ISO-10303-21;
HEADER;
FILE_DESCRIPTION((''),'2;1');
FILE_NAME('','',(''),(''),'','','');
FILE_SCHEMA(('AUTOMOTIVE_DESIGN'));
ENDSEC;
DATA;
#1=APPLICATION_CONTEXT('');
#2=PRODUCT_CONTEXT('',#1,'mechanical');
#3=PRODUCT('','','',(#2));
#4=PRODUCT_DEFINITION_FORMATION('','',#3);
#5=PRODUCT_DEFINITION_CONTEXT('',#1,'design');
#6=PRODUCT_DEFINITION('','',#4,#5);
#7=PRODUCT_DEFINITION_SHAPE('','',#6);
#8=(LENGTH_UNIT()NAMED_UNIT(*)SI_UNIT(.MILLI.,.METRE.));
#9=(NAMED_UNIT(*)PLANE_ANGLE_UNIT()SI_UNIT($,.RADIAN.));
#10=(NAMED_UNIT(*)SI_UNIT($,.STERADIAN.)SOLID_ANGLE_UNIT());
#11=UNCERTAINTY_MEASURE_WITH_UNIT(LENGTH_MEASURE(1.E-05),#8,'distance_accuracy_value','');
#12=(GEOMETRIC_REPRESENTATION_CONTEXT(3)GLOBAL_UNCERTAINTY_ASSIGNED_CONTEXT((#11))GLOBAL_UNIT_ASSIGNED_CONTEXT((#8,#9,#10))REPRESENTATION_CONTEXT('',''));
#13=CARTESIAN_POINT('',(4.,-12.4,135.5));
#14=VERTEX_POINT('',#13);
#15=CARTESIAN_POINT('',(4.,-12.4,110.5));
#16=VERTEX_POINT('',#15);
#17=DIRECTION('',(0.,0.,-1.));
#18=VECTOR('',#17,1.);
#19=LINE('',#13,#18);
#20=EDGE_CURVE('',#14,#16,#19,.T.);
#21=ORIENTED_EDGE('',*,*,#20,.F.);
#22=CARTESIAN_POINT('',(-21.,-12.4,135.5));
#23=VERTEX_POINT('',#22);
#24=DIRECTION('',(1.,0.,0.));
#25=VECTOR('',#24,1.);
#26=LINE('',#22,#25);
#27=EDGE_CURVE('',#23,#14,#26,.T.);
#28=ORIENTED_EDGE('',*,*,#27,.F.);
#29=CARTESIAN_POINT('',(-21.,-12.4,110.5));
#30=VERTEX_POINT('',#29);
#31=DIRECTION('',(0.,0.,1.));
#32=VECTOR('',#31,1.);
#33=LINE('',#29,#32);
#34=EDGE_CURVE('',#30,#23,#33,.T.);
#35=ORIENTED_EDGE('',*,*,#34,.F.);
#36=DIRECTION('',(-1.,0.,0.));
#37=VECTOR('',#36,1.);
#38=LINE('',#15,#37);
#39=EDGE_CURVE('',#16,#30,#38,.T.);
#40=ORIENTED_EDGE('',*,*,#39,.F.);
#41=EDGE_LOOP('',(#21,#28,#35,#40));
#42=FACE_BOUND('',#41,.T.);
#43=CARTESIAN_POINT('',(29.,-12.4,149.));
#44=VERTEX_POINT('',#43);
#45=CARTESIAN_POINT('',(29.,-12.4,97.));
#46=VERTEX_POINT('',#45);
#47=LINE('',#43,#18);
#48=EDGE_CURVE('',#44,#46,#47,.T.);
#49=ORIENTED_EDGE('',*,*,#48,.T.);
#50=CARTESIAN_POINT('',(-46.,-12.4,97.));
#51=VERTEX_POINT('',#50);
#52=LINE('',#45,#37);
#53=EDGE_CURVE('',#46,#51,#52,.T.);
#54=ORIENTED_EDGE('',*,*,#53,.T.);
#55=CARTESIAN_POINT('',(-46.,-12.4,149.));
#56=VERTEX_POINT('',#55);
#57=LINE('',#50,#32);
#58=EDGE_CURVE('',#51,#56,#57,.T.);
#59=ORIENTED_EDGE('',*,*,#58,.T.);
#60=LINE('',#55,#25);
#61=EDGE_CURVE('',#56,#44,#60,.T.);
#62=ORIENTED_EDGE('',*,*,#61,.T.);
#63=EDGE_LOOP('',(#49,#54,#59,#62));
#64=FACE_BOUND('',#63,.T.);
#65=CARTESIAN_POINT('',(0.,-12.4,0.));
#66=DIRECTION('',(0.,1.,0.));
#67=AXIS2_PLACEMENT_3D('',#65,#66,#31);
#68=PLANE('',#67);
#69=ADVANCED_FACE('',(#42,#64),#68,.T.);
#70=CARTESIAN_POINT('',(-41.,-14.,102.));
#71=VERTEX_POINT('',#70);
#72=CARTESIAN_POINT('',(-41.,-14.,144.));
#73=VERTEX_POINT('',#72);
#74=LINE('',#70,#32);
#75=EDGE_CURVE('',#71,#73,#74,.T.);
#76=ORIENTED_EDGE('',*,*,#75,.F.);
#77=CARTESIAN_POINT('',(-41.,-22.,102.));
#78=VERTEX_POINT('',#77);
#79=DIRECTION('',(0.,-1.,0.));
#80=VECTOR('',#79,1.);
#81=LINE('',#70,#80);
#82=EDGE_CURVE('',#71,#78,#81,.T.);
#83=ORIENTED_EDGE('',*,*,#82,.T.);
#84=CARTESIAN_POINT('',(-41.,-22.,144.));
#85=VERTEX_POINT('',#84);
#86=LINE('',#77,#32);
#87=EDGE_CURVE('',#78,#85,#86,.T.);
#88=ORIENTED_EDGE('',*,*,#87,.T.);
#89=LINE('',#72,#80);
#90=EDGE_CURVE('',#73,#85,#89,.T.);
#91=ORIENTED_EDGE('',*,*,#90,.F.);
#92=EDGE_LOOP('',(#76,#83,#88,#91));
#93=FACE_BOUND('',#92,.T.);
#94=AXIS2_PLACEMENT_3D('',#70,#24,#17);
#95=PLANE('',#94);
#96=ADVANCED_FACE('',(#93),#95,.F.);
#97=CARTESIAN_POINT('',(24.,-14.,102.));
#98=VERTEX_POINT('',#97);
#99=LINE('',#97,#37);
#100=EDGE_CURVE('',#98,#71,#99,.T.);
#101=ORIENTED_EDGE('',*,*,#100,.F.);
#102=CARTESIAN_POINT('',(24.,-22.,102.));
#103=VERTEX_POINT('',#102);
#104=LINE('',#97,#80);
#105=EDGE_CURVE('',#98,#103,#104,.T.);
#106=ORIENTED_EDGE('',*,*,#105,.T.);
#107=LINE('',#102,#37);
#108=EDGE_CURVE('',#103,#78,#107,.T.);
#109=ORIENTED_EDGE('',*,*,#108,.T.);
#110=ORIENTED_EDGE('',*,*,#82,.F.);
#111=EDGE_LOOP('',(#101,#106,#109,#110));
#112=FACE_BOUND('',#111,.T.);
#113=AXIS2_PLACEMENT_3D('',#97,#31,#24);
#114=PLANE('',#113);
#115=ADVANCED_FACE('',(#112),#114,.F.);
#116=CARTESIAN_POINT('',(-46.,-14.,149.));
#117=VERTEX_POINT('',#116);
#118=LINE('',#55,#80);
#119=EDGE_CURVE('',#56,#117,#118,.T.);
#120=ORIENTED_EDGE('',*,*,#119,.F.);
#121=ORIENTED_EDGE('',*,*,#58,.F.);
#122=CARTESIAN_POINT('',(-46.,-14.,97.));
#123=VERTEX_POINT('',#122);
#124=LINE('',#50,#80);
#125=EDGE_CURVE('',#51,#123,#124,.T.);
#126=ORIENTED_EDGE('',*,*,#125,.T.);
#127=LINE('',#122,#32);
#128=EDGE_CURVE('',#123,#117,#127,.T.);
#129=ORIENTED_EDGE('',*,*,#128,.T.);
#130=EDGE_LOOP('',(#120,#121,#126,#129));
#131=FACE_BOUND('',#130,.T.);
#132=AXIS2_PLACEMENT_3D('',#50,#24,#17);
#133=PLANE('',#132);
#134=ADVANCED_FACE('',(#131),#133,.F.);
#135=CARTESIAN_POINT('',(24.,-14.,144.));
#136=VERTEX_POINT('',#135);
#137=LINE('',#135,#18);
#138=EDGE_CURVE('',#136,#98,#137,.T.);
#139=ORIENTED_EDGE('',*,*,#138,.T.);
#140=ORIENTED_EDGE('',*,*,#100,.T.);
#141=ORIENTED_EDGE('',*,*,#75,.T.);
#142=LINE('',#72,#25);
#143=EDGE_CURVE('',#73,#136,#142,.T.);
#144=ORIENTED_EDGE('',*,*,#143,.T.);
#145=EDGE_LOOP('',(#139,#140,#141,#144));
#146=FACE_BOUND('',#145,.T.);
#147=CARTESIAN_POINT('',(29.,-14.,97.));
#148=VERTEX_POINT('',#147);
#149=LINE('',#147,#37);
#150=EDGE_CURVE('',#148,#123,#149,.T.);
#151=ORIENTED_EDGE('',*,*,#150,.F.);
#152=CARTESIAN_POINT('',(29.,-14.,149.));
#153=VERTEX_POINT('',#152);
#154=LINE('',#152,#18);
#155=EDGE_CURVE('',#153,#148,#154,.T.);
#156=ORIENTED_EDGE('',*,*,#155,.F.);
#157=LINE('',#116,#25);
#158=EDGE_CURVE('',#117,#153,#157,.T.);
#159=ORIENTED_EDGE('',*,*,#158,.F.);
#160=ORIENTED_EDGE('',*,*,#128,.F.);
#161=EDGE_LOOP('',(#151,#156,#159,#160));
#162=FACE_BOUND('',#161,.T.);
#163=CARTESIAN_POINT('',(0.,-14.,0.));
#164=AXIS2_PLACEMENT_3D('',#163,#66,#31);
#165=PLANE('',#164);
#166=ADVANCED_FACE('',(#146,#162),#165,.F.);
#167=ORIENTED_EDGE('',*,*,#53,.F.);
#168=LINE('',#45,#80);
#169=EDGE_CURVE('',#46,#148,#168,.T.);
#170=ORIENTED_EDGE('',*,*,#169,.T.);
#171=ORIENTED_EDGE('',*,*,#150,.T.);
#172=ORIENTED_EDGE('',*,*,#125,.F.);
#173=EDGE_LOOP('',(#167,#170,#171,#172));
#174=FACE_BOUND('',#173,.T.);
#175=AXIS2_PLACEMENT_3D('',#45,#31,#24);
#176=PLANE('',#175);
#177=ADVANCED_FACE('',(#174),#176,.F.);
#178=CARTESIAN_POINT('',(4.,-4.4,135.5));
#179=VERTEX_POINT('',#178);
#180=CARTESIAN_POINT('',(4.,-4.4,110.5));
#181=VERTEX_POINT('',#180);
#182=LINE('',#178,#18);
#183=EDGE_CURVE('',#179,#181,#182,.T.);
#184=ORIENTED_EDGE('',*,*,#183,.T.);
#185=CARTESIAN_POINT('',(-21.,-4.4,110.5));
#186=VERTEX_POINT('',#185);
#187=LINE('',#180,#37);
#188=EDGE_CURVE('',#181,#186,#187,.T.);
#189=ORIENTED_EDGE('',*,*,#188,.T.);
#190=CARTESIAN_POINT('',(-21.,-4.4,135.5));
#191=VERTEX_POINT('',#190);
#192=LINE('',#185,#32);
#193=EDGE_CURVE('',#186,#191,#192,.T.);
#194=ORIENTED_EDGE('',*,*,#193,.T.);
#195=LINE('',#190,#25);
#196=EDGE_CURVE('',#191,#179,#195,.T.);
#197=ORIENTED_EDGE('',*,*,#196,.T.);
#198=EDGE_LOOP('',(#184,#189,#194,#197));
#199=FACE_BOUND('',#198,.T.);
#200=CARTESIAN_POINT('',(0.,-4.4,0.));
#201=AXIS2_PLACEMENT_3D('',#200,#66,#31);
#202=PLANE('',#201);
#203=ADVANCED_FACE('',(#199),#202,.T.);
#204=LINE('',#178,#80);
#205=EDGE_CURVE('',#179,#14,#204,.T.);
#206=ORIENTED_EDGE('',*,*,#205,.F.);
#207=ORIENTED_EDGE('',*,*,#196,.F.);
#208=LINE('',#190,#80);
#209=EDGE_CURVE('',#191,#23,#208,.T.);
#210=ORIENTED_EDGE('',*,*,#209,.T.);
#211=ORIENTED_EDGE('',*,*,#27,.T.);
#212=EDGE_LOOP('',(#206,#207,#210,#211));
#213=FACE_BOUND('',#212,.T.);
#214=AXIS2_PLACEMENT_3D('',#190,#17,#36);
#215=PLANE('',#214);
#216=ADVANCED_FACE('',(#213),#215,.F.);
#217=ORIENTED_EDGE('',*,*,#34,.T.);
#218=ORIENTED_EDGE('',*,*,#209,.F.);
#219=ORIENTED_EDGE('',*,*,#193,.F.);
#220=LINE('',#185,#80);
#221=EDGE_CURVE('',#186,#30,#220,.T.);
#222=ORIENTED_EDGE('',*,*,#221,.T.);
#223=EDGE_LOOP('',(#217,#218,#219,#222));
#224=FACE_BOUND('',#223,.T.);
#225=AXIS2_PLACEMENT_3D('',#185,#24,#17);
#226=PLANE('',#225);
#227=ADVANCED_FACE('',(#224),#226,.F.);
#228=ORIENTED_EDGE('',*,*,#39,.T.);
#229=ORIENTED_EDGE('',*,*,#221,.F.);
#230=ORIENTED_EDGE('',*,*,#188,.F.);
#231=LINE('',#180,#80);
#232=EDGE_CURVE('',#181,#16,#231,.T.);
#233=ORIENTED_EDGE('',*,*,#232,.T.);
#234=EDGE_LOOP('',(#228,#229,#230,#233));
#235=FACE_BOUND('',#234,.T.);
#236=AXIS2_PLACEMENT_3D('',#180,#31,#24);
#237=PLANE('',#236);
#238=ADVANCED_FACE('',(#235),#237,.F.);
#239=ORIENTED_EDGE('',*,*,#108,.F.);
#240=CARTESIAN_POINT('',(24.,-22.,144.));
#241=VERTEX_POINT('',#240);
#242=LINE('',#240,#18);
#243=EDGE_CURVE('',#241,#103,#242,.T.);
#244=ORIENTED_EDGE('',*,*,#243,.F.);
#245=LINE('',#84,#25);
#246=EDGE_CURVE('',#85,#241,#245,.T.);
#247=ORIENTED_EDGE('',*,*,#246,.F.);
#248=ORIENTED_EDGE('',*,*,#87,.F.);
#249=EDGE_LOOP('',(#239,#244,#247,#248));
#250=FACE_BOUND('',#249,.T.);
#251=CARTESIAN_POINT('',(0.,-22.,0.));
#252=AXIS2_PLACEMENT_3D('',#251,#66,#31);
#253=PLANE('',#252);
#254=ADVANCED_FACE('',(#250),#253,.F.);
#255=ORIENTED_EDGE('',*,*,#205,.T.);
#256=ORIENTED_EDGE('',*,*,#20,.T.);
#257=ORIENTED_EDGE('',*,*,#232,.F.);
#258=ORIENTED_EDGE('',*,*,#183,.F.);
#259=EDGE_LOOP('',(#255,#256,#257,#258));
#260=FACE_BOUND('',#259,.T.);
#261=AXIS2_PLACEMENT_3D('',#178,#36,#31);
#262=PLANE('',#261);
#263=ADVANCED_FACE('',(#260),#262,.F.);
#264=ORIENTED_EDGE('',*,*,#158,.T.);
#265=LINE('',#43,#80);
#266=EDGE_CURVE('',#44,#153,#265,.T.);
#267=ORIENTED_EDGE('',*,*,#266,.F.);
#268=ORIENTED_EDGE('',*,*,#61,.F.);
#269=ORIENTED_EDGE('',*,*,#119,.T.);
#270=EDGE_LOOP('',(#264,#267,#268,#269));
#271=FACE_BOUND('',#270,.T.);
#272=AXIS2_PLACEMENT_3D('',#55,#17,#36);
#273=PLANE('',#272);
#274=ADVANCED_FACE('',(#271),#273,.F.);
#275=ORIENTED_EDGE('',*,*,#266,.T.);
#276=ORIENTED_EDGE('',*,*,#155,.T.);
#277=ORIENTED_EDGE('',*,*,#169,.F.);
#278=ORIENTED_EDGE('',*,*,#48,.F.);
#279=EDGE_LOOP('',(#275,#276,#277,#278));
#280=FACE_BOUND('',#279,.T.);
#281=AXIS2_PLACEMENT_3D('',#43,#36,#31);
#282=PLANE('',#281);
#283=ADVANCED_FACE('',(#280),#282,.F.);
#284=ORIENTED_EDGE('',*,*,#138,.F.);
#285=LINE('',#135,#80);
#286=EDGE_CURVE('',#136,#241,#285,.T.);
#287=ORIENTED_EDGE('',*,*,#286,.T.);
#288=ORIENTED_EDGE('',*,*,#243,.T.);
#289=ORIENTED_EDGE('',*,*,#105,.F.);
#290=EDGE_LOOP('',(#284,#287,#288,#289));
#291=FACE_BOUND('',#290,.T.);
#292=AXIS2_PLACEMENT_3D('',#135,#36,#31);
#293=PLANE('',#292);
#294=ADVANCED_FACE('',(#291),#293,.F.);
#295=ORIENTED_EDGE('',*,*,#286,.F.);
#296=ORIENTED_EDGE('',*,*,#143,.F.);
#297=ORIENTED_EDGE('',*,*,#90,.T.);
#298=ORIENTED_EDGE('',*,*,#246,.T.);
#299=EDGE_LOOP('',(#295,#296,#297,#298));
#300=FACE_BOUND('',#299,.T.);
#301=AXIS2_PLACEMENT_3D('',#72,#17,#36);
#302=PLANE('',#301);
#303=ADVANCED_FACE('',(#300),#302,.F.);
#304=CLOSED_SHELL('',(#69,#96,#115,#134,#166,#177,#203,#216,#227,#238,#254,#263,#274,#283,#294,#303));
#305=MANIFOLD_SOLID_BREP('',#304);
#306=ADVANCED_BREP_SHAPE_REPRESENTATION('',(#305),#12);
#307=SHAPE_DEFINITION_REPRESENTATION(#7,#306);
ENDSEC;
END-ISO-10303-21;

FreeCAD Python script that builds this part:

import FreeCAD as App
import Part
import Sketcher
from FreeCAD import Vector

doc = App.newDocument("Part")
body = doc.addObject("PartDesign::Body", "Body")

# Sketch on XZ plane
sketch1 = doc.addObject("Sketcher::SketchObject", "Sketch")
body.addObject(sketch1)
sketch1.AttachmentSupport = (doc.XZ_Plane, [""])
sketch1.MapMode = "FlatFace"
sketch1.AttachmentOffset = App.Placement(Vector(0, 0, 14), App.Rotation())
sketch1.addGeometry([
    Part.LineSegment(Vector(-46, 97, 0), Vector(-46, 149, 0)),
    Part.LineSegment(Vector(-46, 149, 0), Vector(29, 149, 0)),
    Part.LineSegment(Vector(29, 149, 0), Vector(29, 97, 0)),
    Part.LineSegment(Vector(29, 97, 0), Vector(-46, 97, 0)),
], False)
sketch1.addConstraint([
    Sketcher.Constraint("Coincident", 0, 2, 1, 1),
    Sketcher.Constraint("Coincident", 1, 2, 2, 1),
    Sketcher.Constraint("Coincident", 2, 2, 3, 1),
    Sketcher.Constraint("Coincident", 3, 2, 0, 1),
    Sketcher.Constraint("Vertical", 0),
    Sketcher.Constraint("Horizontal", 1),
    Sketcher.Constraint("Vertical", 2),
    Sketcher.Constraint("Horizontal", 3),
    Sketcher.Constraint("DistanceX", 1, 1, 1, 2, 75.0),
    Sketcher.Constraint("DistanceY", 0, 1, 0, 2, 52.0),
    Sketcher.Constraint("DistanceX", 0, 2, -1, 1, 46.0),
    Sketcher.Constraint("DistanceY", -1, 1, 0, 2, 149.0),
])
pad1 = doc.addObject("PartDesign::Pad", "Pad")
body.addObject(pad1)
pad1.Profile = sketch1
pad1.Length = 1.6
pad1.Reversed = True

# Sketch on XZ plane
sketch2 = doc.addObject("Sketcher::SketchObject", "Sketch001")
body.addObject(sketch2)
sketch2.AttachmentSupport = (doc.XZ_Plane, [""])
sketch2.MapMode = "FlatFace"
sketch2.AttachmentOffset = App.Placement(Vector(0, 0, 12.4), App.Rotation())
sketch2.addGeometry([
    Part.LineSegment(Vector(-21, 110, 0), Vector(-21, 136, 0)),
    Part.LineSegment(Vector(-21, 136, 0), Vector(4, 136, 0)),
    Part.LineSegment(Vector(4, 136, 0), Vector(4, 110, 0)),
    Part.LineSegment(Vector(4, 110, 0), Vector(-21, 110, 0)),
], False)
sketch2.addConstraint([
    Sketcher.Constraint("Coincident", 0, 2, 1, 1),
    Sketcher.Constraint("Coincident", 1, 2, 2, 1),
    Sketcher.Constraint("Coincident", 2, 2, 3, 1),
    Sketcher.Constraint("Coincident", 3, 2, 0, 1),
    Sketcher.Constraint("Vertical", 0),
    Sketcher.Constraint("Horizontal", 1),
    Sketcher.Constraint("Vertical", 2),
    Sketcher.Constraint("Horizontal", 3),
    Sketcher.Constraint("Equal", 3, 0),
    Sketcher.Constraint("DistanceX", 1, 1, 1, 2, 25.0),
    Sketcher.Constraint("DistanceX", 0, 2, -1, 1, 21.0),
    Sketcher.Constraint("DistanceY", -1, 1, 0, 2, 135.5),
])
pad2 = doc.addObject("PartDesign::Pad", "Pad001")
body.addObject(pad2)
pad2.Profile = sketch2
pad2.Length = 8
pad2.Reversed = True

# Sketch on XZ plane
sketch3 = doc.addObject("Sketcher::SketchObject", "Sketch002")
body.addObject(sketch3)
sketch3.AttachmentSupport = (doc.XZ_Plane, [""])
sketch3.MapMode = "FlatFace"
sketch3.AttachmentOffset = App.Placement(Vector(0, 0, 22), App.Rotation())
sketch3.addGeometry([
    Part.LineSegment(Vector(-41, 102, 0), Vector(-41, 144, 0)),
    Part.LineSegment(Vector(-41, 144, 0), Vector(24, 144, 0)),
    Part.LineSegment(Vector(24, 144, 0), Vector(24, 102, 0)),
    Part.LineSegment(Vector(24, 102, 0), Vector(-41, 102, 0)),
], False)
sketch3.addConstraint([
    Sketcher.Constraint("Coincident", 0, 2, 1, 1),
    Sketcher.Constraint("Coincident", 1, 2, 2, 1),
    Sketcher.Constraint("Coincident", 2, 2, 3, 1),
    Sketcher.Constraint("Coincident", 3, 2, 0, 1),
    Sketcher.Constraint("Vertical", 0),
    Sketcher.Constraint("Horizontal", 1),
    Sketcher.Constraint("Vertical", 2),
    Sketcher.Constraint("Horizontal", 3),
    Sketcher.Constraint("DistanceX", 1, 1, 1, 2, 65.0),
    Sketcher.Constraint("DistanceY", 0, 1, 0, 2, 42.0),
    Sketcher.Constraint("DistanceX", 0, 2, -1, 1, 41.0),
    Sketcher.Constraint("DistanceY", -1, 1, 0, 2, 144.0),
])
pad3 = doc.addObject("PartDesign::Pad", "Pad002")
body.addObject(pad3)
pad3.Profile = sketch3
pad3.Length = 8
pad3.Reversed = True

doc.recompute()
